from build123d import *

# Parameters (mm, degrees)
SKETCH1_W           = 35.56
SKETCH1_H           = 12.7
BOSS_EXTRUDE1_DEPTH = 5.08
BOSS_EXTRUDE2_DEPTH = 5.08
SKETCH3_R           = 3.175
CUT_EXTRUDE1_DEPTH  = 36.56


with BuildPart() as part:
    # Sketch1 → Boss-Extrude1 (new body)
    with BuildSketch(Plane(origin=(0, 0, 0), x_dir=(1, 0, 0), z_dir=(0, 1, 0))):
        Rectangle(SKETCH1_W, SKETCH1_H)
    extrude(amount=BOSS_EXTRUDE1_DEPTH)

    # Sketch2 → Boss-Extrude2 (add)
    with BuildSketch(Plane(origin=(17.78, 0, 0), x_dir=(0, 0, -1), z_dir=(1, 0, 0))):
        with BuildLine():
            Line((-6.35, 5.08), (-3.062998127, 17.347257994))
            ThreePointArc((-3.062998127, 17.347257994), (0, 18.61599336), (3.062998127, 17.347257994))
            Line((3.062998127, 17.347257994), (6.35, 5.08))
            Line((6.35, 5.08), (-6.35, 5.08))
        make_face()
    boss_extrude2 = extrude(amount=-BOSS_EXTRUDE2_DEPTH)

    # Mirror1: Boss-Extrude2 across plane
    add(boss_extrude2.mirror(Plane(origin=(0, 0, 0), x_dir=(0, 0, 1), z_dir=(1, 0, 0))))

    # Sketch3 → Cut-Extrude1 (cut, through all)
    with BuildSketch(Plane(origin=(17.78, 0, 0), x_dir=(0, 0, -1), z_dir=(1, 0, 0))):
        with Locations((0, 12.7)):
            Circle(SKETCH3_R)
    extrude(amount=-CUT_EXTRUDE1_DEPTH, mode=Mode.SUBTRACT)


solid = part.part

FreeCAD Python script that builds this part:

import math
import FreeCAD as App
import Part
import Sketcher
Q = App.Units.Quantity

doc = App.newDocument("Part")
body = doc.addObject("PartDesign::Body", "Body")

sketch1 = body.newObject("Sketcher::SketchObject", "Sketch")
sketch1.AttachmentSupport = (doc.getObject("XZ_Plane"), [""])
sketch1.MapMode = "FlatFace"
sketch1.addGeometry([
    Part.LineSegment(App.Vector(-17.78, -6.35, 0), App.Vector(-17.78, 6.35, 0)),
    Part.LineSegment(App.Vector(-17.78, 6.35, 0), App.Vector(17.78, 6.35, 0)),
    Part.LineSegment(App.Vector(17.78, 6.35, 0), App.Vector(17.78, -6.35, 0)),
    Part.LineSegment(App.Vector(17.78, -6.35, 0), App.Vector(-17.78, -6.35, 0)),
], False)
sketch1.addConstraint([
    Sketcher.Constraint("Coincident", 0, 2, 1, 1),
    Sketcher.Constraint("Coincident", 1, 2, 2, 1),
    Sketcher.Constraint("Coincident", 2, 2, 3, 1),
    Sketcher.Constraint("Coincident", 3, 2, 0, 1),
    Sketcher.Constraint("Vertical", 0),
    Sketcher.Constraint("Horizontal", 1),
    Sketcher.Constraint("Vertical", 2),
    Sketcher.Constraint("Horizontal", 3),
    Sketcher.Constraint("Symmetric", 0, 2, 2, 2, -1, 1),
    Sketcher.Constraint("DistanceX", 1, 1, 1, 2, Q("1.4 in")),
    Sketcher.Constraint("DistanceY", 0, 1, 0, 2, Q("0.5 in")),
])
pad1 = body.newObject("PartDesign::Pad", "Pad")
pad1.Profile = sketch1
pad1.Length = Q("0.2 in")
pad1.Reversed = True

sketch2 = body.newObject("Sketcher::SketchObject", "Sketch001")
sketch2.AttachmentSupport = (doc.getObject("YZ_Plane"), [""])
sketch2.MapMode = "FlatFace"
sketch2.AttachmentOffset = App.Placement(App.Vector(0, 0, 0.7 * 25.4), App.Rotation())
sketch2.addGeometry([
    Part.LineSegment(App.Vector(17.347258, 3.062998, 0), App.Vector(5.08, 6.35, 0)),
    Part.LineSegment(App.Vector(5.08, 6.35, 0), App.Vector(5.08, -6.35, 0)),
    Part.LineSegment(App.Vector(5.08, -6.35, 0), App.Vector(17.347258, -3.062998, 0)),
    Part.ArcOfCircle(Part.Circle(App.Vector(14.28426, 0, 0), App.Vector(0, 0, 1), 4.331733), math.radians(-45), math.radians(45)),
], False)
sketch2.addConstraint([
    Sketcher.Constraint("Coincident", 0, 2, 1, 1),
    Sketcher.Constraint("Coincident", 1, 2, 2, 1),
    Sketcher.Constraint("Coincident", 2, 2, 3, 1),
    Sketcher.Constraint("Coincident", 3, 2, 0, 1),
    Sketcher.Constraint("Vertical", 1),
    Sketcher.Constraint("Symmetric", 2, 2, 3, 2, -1),
    Sketcher.Constraint("Equal", 0, 2),
    Sketcher.Constraint("DistanceY", 1, 2, 1, 1, Q("0.5 in")),
    Sketcher.Constraint("Angle", 0, Q("165 deg")),
    Sketcher.Constraint("Distance", 0, Q("0.5 in")),
    Sketcher.Constraint("DistanceX", -1, 1, 0, 2, Q("0.2 in")),
    Sketcher.Constraint("Radius", 3, 4.331733),
])
pad2 = body.newObject("PartDesign::Pad", "Pad001")
pad2.Profile = sketch2
pad2.Length = Q("0.2 in")
pad2.Reversed = True
doc.recompute()

mirrored = body.newObject("PartDesign::Mirrored", "Mirrored")
mirrored.Originals = [pad2]
mirrored.MirrorPlane = (doc.getObject("YZ_Plane"), [""])
body.Tip = mirrored

sketch3 = body.newObject("Sketcher::SketchObject", "Sketch002")
sketch3.AttachmentSupport = (doc.getObject("YZ_Plane"), [""])
sketch3.MapMode = "FlatFace"
sketch3.AttachmentOffset = App.Placement(App.Vector(0, 0, 0.7 * 25.4), App.Rotation())
sketch3.addGeometry(Part.Circle(App.Vector(12.7, 0, 0), App.Vector(0, 0, 1), 3.175), False)
sketch3.addConstraint([
    Sketcher.Constraint("PointOnObject", 0, 3, -1),
    Sketcher.Constraint("Diameter", 0, Q("0.25 in")),
    Sketcher.Constraint("DistanceX", -1, 1, 0, 3, Q("0.5 in")),
])
pocket1 = body.newObject("PartDesign::Pocket", "Pocket")
pocket1.Profile = sketch3
pocket1.Type = "ThroughAll"

doc.recompute()
